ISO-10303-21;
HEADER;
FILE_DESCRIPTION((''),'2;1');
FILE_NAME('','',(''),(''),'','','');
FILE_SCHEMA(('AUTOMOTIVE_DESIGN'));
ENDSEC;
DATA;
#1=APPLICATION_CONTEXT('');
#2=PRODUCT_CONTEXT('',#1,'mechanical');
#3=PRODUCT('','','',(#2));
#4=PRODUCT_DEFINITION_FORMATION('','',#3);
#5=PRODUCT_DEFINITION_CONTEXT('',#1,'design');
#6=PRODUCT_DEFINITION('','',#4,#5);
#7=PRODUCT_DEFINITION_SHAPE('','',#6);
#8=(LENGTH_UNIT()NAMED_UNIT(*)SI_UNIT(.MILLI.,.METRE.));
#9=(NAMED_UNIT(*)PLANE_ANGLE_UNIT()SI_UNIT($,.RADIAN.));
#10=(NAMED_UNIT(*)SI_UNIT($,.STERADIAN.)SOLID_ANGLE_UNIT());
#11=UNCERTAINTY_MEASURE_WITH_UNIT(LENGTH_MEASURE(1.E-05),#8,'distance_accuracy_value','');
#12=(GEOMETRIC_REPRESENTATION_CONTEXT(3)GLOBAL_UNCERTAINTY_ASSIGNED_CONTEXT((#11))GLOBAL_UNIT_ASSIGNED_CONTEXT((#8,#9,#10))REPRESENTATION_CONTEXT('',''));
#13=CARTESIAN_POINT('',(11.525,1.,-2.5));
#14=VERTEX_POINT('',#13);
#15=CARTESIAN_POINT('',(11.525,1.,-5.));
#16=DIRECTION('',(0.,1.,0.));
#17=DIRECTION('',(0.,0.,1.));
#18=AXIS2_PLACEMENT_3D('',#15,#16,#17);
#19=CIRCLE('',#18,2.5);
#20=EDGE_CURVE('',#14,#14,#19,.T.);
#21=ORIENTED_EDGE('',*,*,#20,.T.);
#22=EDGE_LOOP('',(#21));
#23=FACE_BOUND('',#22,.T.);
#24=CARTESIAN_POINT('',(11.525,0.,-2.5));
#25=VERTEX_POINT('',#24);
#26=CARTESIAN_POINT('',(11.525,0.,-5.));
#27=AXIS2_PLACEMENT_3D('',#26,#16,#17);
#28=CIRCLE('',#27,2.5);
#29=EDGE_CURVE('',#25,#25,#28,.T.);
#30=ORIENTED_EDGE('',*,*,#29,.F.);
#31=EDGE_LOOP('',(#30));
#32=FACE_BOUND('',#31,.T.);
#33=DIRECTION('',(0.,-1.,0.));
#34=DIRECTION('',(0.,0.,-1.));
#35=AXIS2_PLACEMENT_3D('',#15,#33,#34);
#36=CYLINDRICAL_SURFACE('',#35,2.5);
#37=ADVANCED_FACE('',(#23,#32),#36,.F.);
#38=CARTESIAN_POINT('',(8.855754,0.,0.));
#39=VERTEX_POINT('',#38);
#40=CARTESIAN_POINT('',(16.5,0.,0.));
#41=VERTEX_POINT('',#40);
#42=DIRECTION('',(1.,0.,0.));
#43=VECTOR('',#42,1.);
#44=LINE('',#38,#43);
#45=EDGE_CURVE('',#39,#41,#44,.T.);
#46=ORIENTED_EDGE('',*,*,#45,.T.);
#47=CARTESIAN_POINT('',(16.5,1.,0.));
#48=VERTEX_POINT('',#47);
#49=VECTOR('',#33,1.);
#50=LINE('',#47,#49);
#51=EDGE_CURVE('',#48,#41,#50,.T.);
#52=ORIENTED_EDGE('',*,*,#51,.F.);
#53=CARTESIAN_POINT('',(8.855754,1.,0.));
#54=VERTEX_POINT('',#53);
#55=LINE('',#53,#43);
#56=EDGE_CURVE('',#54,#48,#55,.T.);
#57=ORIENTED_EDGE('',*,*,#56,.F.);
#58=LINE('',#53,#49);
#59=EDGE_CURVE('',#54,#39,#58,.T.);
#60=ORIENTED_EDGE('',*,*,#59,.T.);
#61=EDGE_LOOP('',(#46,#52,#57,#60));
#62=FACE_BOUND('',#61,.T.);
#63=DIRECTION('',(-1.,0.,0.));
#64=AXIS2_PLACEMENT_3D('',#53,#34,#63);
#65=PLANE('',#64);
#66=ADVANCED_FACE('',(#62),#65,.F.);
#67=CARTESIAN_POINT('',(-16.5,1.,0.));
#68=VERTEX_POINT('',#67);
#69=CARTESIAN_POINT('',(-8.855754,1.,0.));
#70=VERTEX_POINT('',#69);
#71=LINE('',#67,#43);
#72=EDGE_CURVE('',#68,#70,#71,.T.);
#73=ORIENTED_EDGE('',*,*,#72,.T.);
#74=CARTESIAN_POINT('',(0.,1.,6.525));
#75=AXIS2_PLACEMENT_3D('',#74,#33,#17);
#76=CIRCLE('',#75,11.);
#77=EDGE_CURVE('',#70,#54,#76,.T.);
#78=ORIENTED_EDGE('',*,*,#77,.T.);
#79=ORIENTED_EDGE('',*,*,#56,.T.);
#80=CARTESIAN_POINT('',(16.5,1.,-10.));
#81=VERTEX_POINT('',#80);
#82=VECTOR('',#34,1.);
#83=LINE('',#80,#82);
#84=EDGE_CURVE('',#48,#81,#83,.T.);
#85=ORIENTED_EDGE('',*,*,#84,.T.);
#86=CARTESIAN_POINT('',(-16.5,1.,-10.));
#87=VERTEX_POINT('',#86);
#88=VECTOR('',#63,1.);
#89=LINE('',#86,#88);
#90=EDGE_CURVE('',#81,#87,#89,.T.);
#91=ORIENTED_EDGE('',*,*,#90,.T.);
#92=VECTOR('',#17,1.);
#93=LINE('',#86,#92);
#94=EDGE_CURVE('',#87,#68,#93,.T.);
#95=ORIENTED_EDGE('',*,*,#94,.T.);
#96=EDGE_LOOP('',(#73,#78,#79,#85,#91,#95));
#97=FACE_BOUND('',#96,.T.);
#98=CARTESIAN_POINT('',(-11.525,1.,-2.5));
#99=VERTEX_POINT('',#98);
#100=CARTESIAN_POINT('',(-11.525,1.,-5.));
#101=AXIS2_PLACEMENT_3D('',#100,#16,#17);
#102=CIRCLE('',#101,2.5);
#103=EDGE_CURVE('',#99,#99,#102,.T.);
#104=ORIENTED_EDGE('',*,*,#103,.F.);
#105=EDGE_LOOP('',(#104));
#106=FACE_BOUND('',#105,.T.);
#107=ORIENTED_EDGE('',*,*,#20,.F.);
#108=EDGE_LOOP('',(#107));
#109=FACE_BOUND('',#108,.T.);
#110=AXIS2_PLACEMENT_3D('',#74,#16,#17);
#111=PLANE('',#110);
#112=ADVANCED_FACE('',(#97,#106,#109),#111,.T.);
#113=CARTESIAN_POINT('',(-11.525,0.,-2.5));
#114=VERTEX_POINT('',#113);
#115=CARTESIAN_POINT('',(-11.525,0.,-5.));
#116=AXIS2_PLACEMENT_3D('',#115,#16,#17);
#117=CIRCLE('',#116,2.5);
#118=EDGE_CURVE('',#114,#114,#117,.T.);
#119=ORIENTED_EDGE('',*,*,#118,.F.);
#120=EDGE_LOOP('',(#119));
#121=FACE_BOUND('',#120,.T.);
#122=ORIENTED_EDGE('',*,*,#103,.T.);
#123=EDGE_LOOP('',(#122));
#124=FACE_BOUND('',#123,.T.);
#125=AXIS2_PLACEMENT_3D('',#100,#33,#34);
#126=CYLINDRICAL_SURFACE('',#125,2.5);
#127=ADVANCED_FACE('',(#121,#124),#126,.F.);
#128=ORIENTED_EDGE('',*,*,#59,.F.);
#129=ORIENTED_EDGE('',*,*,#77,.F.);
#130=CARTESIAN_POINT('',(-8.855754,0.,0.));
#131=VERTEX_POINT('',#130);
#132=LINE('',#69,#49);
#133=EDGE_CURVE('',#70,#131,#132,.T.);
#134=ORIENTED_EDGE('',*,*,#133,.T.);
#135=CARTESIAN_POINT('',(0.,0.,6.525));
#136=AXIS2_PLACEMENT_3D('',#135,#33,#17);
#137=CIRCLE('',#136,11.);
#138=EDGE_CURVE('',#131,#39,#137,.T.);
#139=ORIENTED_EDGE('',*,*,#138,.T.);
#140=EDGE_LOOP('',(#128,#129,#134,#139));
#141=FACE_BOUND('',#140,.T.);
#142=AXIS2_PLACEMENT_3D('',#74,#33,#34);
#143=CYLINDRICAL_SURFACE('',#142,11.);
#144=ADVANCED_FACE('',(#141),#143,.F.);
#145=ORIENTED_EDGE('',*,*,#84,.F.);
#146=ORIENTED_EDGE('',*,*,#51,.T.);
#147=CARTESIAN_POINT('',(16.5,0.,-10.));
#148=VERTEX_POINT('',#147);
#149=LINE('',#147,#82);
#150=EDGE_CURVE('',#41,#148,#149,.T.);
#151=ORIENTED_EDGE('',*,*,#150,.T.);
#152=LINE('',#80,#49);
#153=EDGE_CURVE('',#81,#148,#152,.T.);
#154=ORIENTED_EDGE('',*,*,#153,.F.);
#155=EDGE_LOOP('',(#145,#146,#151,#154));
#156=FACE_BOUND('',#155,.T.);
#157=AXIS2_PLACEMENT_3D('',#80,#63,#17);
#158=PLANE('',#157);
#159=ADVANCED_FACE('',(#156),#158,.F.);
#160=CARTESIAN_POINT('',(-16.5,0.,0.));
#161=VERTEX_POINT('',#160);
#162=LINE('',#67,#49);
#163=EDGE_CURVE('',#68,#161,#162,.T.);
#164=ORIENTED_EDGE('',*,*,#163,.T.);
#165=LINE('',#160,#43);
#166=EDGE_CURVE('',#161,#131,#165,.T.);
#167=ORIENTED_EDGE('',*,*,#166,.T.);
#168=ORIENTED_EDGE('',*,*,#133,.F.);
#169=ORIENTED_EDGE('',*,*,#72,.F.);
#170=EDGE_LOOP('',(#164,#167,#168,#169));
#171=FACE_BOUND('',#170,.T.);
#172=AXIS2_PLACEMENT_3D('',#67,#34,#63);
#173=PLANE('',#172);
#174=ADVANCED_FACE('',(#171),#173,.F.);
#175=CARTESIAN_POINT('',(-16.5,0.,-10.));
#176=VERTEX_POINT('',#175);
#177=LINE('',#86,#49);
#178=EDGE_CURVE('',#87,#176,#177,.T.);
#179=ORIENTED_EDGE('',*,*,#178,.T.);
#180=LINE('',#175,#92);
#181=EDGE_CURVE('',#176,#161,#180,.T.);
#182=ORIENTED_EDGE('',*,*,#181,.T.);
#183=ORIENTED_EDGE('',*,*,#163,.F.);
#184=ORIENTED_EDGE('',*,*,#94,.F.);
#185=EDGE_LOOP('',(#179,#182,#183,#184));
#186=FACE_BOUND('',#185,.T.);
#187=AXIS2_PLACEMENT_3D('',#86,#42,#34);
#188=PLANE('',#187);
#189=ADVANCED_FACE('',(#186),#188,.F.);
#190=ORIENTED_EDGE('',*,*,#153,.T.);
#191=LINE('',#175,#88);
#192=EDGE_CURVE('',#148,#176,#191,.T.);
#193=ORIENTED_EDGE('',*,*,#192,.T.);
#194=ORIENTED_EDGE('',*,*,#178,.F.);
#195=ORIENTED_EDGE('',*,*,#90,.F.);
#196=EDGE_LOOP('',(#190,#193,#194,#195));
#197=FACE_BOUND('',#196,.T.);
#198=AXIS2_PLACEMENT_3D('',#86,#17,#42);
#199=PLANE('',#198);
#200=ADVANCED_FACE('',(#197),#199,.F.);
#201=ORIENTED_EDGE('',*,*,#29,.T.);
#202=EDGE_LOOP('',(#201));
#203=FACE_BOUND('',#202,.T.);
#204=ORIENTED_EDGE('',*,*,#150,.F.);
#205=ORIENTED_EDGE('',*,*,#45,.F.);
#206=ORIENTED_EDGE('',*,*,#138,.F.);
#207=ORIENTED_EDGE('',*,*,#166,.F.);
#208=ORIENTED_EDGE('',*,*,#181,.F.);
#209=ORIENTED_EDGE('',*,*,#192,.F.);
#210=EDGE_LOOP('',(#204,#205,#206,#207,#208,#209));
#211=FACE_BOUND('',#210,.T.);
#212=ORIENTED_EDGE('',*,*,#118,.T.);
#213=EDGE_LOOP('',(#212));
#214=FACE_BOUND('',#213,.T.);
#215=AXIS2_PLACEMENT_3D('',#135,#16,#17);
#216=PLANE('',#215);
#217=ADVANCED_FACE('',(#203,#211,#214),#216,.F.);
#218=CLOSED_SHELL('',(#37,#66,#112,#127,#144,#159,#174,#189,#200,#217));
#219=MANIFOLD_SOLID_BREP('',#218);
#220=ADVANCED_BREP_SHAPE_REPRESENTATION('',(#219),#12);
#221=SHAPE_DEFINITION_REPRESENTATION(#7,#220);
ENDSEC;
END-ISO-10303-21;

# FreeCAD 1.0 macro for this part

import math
import FreeCAD as App
import Part
import Sketcher

V = App.Vector

doc = App.newDocument("Part")
body = doc.addObject("PartDesign::Body", "Body")

# Sketch on XZ plane
sketch1 = body.newObject("Sketcher::SketchObject", "Sketch")
sketch1.AttachmentSupport = (doc.getObject("XZ_Plane"), [""])
sketch1.MapMode = "FlatFace"
sketch1.addGeometry(Part.LineSegment(V(16.5, -10, 0), V(-16.5, -10, 0)), False)
sketch1.addGeometry(Part.LineSegment(V(-16.5, -10, 0), V(-16.5, 0, 0)), False)
sketch1.addGeometry(Part.LineSegment(V(-16.5, 0, 0), V(-8.855754, 0, 0)), False)
sketch1.addGeometry(Part.ArcOfCircle(Part.Circle(V(0, 6.525, 0), V(0, 0, 1), 11), math.radians(-143.616874), math.radians(-36.383126)), False)
sketch1.addGeometry(Part.LineSegment(V(8.855754, 0, 0), V(16.5, 0, 0)), False)
sketch1.addGeometry(Part.LineSegment(V(16.5, 0, 0), V(16.5, -10, 0)), False)
sketch1.addGeometry(Part.Circle(V(11.525, -5, 0), V(0, 0, 1), 2.5), False)
sketch1.addGeometry(Part.Circle(V(-11.525, -5, 0), V(0, 0, 1), 2.5), False)
sketch1.addConstraint(Sketcher.Constraint("Coincident", 0, 2, 1, 1))
sketch1.addConstraint(Sketcher.Constraint("Coincident", 1, 2, 2, 1))
sketch1.addConstraint(Sketcher.Constraint("Coincident", 2, 2, 3, 1))
sketch1.addConstraint(Sketcher.Constraint("Coincident", 3, 2, 4, 1))
sketch1.addConstraint(Sketcher.Constraint("Coincident", 4, 2, 5, 1))
sketch1.addConstraint(Sketcher.Constraint("Coincident", 5, 2, 0, 1))
sketch1.addConstraint(Sketcher.Constraint("Horizontal", 0))
sketch1.addConstraint(Sketcher.Constraint("Vertical", 1))
sketch1.addConstraint(Sketcher.Constraint("Horizontal", 2))
sketch1.addConstraint(Sketcher.Constraint("Horizontal", 4))
sketch1.addConstraint(Sketcher.Constraint("Vertical", 5))
sketch1.addConstraint(Sketcher.Constraint("Equal", 6, 7))
sketch1.addConstraint(Sketcher.Constraint("Symmetric", 2, 2, 3, 2, -1, 1))
sketch1.addConstraint(Sketcher.Constraint("Symmetric", 6, 3, 7, 3, -2))
sketch1.addConstraint(Sketcher.Constraint("Symmetric", 1, 2, 4, 2, -2))
sketch1.addConstraint(Sketcher.Constraint("Diameter", 6, 5.0))
sketch1.addConstraint(Sketcher.Constraint("Radius", 3, 11.0))
sketch1.addConstraint(Sketcher.Constraint("DistanceX", 0, 2, 0, 1, 33.0))
sketch1.addConstraint(Sketcher.Constraint("DistanceY", 1, 1, 1, 2, 10.0))
sketch1.addConstraint(Sketcher.Constraint("DistanceY", 6, 3, -1, 1, 5.0))
sketch1.addConstraint(Sketcher.Constraint("DistanceX", 7, 3, 6, 3, 23.05))
sketch1.addConstraint(Sketcher.Constraint("DistanceY", -1, 1, 3, 3, 6.525))
pad1 = body.newObject("PartDesign::Pad", "Pad")
pad1.Profile = sketch1
pad1.Length = 1
pad1.Reversed = True

doc.recompute()
